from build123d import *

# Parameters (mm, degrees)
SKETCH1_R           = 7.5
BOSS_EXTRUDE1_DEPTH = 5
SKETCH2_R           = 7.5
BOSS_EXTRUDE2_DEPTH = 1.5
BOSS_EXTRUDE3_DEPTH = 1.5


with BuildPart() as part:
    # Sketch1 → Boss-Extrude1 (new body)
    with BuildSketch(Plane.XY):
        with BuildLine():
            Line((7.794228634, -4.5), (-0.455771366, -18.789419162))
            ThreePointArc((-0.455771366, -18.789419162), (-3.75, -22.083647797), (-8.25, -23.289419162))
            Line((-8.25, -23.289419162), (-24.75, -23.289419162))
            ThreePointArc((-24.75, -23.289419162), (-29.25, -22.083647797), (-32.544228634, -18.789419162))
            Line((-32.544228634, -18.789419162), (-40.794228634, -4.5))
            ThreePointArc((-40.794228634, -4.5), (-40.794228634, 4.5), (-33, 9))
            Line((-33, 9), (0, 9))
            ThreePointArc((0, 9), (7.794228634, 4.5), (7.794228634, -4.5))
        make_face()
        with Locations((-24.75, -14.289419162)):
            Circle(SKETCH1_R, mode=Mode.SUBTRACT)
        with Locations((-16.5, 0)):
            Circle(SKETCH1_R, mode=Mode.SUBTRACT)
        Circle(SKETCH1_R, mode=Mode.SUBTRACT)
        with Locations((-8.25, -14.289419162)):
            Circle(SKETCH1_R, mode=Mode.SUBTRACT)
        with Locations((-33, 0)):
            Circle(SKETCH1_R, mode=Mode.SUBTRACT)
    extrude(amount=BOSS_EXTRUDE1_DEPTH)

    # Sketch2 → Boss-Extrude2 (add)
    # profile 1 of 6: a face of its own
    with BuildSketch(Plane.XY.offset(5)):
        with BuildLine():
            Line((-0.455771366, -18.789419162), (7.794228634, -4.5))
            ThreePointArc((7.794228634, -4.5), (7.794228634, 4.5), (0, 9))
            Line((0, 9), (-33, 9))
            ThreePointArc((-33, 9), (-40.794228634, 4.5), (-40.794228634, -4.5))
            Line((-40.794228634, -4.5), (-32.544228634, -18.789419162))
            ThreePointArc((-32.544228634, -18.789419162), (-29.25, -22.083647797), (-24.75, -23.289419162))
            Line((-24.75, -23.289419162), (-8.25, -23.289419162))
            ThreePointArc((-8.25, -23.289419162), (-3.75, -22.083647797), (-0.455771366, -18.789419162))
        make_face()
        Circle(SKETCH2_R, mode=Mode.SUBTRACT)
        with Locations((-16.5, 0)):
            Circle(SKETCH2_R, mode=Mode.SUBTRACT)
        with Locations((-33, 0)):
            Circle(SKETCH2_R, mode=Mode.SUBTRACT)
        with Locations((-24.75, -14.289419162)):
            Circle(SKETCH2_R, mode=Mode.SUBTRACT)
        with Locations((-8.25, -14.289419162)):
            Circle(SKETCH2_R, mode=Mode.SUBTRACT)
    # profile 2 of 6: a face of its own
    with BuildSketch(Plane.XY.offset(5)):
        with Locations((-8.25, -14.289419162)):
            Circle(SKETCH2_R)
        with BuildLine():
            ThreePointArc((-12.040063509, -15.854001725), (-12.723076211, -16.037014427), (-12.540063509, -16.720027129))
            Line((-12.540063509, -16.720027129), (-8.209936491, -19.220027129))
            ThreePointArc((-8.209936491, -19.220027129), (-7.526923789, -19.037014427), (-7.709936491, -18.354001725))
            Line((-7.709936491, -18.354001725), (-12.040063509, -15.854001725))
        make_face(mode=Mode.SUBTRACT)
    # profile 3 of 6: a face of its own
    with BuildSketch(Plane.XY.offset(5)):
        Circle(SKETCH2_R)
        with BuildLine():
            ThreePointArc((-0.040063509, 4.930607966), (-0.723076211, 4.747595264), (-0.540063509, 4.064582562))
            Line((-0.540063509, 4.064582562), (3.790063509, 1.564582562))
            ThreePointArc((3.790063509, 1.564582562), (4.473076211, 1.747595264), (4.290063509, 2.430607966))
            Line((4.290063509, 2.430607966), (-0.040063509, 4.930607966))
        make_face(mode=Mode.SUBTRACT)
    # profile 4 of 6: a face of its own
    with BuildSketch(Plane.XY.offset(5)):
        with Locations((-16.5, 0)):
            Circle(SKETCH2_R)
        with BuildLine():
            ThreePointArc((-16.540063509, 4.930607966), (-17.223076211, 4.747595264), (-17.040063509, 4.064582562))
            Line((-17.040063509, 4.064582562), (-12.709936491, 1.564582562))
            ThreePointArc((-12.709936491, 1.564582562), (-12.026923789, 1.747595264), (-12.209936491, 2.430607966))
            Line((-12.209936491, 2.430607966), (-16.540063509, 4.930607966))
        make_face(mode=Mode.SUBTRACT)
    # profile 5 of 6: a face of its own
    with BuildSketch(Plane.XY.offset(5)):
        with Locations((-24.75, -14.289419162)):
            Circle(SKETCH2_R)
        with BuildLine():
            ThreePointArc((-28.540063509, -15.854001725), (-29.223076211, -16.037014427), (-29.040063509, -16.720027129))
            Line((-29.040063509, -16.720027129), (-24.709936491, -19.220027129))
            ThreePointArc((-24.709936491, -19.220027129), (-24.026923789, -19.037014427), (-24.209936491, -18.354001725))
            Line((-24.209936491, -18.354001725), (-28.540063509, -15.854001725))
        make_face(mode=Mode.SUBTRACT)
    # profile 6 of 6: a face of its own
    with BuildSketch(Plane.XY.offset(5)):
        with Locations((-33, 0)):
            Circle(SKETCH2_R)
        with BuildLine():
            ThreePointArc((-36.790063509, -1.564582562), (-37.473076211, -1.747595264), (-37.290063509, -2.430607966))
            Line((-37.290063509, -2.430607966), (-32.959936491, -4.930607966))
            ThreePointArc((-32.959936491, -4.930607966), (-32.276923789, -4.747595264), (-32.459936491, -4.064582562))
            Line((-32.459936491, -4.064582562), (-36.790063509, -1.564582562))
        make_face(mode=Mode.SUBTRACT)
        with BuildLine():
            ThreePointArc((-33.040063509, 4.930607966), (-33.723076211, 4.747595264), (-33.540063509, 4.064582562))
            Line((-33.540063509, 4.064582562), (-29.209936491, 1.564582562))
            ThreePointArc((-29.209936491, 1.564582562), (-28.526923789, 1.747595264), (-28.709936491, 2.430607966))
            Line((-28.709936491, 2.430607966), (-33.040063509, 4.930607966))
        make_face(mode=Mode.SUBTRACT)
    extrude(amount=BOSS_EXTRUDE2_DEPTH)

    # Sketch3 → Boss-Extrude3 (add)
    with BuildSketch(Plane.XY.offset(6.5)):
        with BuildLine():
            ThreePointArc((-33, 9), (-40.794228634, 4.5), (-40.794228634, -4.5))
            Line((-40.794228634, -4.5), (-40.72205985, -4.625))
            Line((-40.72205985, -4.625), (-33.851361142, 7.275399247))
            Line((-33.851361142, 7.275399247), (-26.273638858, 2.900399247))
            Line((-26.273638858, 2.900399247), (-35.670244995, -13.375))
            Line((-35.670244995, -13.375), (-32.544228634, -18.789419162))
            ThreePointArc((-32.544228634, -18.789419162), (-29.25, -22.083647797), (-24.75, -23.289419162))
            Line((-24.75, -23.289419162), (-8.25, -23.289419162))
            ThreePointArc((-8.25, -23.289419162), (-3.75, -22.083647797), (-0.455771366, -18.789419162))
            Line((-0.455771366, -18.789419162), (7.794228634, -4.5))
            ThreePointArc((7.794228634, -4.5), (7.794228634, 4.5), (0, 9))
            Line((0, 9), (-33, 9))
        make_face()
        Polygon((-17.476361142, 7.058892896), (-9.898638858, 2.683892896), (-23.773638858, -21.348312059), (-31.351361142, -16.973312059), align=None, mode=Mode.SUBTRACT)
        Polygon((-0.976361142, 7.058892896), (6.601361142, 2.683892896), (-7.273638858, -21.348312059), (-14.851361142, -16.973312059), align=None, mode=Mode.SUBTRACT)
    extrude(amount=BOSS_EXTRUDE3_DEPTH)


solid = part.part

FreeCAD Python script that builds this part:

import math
import FreeCAD as App
import Part
import Sketcher
Q = App.Units.Quantity


def add_polygon(sketch, points):
    """Adds a closed chain of lines whose ends are joined by coincident constraints."""
    first, n = sketch.GeometryCount, len(points)
    for a, b in zip(points, points[1:] + points[:1]):
        sketch.addGeometry(Part.LineSegment(App.Vector(*a, 0), App.Vector(*b, 0)), False)
    for i in range(n):
        sketch.addConstraint(Sketcher.Constraint("Coincident", first + i, 2, first + (i + 1) % n, 1))

doc = App.newDocument("Part")
body = doc.addObject("PartDesign::Body", "Body")

# Sketch on XY plane
sketch1 = body.newObject("Sketcher::SketchObject", "Sketch")
sketch1.AttachmentSupport = (doc.getObject("XY_Plane"), [""])
sketch1.MapMode = "FlatFace"
sketch1.addGeometry([
    Part.LineSegment(App.Vector(0, -19, 0), App.Vector(8, -4, 0)),  # 0
    Part.ArcOfCircle(Part.Circle(App.Vector(0, 0, 0), App.Vector(0, 0, 1), 9), math.radians(-30), math.radians(90)),  # 1
    Part.LineSegment(App.Vector(0, 9, 0), App.Vector(-33, 9, 0)),  # 2
    Part.ArcOfCircle(Part.Circle(App.Vector(-33, 0, 0), App.Vector(0, 0, 1), 9), math.radians(90), math.radians(210)),  # 3
    Part.LineSegment(App.Vector(-41, -4, 0), App.Vector(-33, -19, 0)),  # 4
    Part.ArcOfCircle(Part.Circle(App.Vector(-25, -14, 0), App.Vector(0, 0, 1), 9), math.radians(-150), math.radians(-90)),  # 5
    Part.LineSegment(App.Vector(-25, -23, 0), App.Vector(-8, -23, 0)),  # 6
    Part.ArcOfCircle(Part.Circle(App.Vector(-8, -14, 0), App.Vector(0, 0, 1), 9), math.radians(-90), math.radians(-30)),  # 7
    Part.Circle(App.Vector(-8, -14, 0), App.Vector(0, 0, 1), 8),  # 8
    Part.Circle(App.Vector(-25, -14, 0), App.Vector(0, 0, 1), 8),  # 9
    Part.Circle(App.Vector(0, 0, 0), App.Vector(0, 0, 1), 8),  # 10
    Part.Circle(App.Vector(-16, 0, 0), App.Vector(0, 0, 1), 8),  # 11
    Part.Circle(App.Vector(-33, 0, 0), App.Vector(0, 0, 1), 8),  # 12
], False)
sketch1.addConstraint([
    Sketcher.Constraint("Tangent", 0, 2, 1, 1),
    Sketcher.Constraint("Tangent", 1, 2, 2, 1),
    Sketcher.Constraint("Tangent", 2, 2, 3, 1),
    Sketcher.Constraint("Tangent", 3, 2, 4, 1),
    Sketcher.Constraint("Tangent", 4, 2, 5, 1),
    Sketcher.Constraint("Tangent", 5, 2, 6, 1),
    Sketcher.Constraint("Tangent", 6, 2, 7, 1),
    Sketcher.Constraint("Tangent", 7, 2, 0, 1),
    Sketcher.Constraint("Horizontal", 2),
    Sketcher.Constraint("Horizontal", 6),
    Sketcher.Constraint("Coincident", 1, 3, -1, 1),
    Sketcher.Constraint("Coincident", 10, 3, -1, 1),
    Sketcher.Constraint("Coincident", 8, 3, 7, 3),
    Sketcher.Constraint("Coincident", 9, 3, 5, 3),
    Sketcher.Constraint("Coincident", 12, 3, 3, 3),
    Sketcher.Constraint("Equal", 1, 3),
    Sketcher.Constraint("Equal", 3, 5),
    Sketcher.Constraint("Equal", 5, 7),
    Sketcher.Constraint("Equal", 8, 9),
    Sketcher.Constraint("Equal", 9, 10),
    Sketcher.Constraint("Equal", 10, 11),
    Sketcher.Constraint("Equal", 11, 12),
    Sketcher.Constraint("PointOnObject", 11, 3, -1),
    Sketcher.Constraint("Horizontal", 0, 2, 3, 2),
    Sketcher.Constraint("Diameter", 8, 15.0),
    Sketcher.Constraint("Radius", 1, 9.0),
    Sketcher.Constraint("DistanceX", 2, 2, 2, 1, 33.0),
    Sketcher.Constraint("Angle", 0, Q("60 deg")),
    Sketcher.Constraint("DistanceX", 6, 1, 6, 2, 16.5),
    Sketcher.Constraint("DistanceX", 11, 3, -1, 1, 16.5),
])
pad1 = body.newObject("PartDesign::Pad", "Pad")
pad1.Profile = sketch1
pad1.Length = 5

# Sketch on XY plane
sketch2 = body.newObject("Sketcher::SketchObject", "Sketch001")
sketch2.AttachmentSupport = (doc.getObject("XY_Plane"), [""])
sketch2.MapMode = "FlatFace"
sketch2.AttachmentOffset = App.Placement(App.Vector(0, 0, 5), App.Rotation())
sketch2.addGeometry([
    Part.LineSegment(App.Vector(-0.5, -18.8, 0), App.Vector(7.8, -4.5, 0)),  # 0
    Part.ArcOfCircle(Part.Circle(App.Vector(0, 0, 0), App.Vector(0, 0, 1), 9), math.radians(-30), math.radians(90)),  # 1
    Part.LineSegment(App.Vector(0, 9, 0), App.Vector(-33, 9, 0)),  # 2
    Part.ArcOfCircle(Part.Circle(App.Vector(-33, 0, 0), App.Vector(0, 0, 1), 9), math.radians(90), math.radians(210)),  # 3
    Part.LineSegment(App.Vector(-40.8, -4.5, 0), App.Vector(-32.5, -18.8, 0)),  # 4
    Part.ArcOfCircle(Part.Circle(App.Vector(-24.8, -14.3, 0), App.Vector(0, 0, 1), 9), math.radians(-150), math.radians(-90)),  # 5
    Part.LineSegment(App.Vector(-24.8, -23.3, 0), App.Vector(-8.2, -23.3, 0)),  # 6
    Part.ArcOfCircle(Part.Circle(App.Vector(-8.2, -14.3, 0), App.Vector(0, 0, 1), 9), math.radians(-90), math.radians(-30)),  # 7
    Part.LineSegment(App.Vector(-28.5, -15.9, 0), App.Vector(-24.2, -18.4, 0)),  # 8
    Part.ArcOfCircle(Part.Circle(App.Vector(-24.5, -18.8, 0), App.Vector(0, 0, 1), 0.5), math.radians(-120), math.radians(60)),  # 9
    Part.LineSegment(App.Vector(-24.7, -19.2, 0), App.Vector(-29, -16.7, 0)),  # 10
    Part.ArcOfCircle(Part.Circle(App.Vector(-28.8, -16.3, 0), App.Vector(0, 0, 1), 0.5), math.radians(60), math.radians(240)),  # 11
    Part.LineSegment(App.Vector(-12, -15.9, 0), App.Vector(-7.7, -18.4, 0)),  # 12
    Part.ArcOfCircle(Part.Circle(App.Vector(-8, -18.8, 0), App.Vector(0, 0, 1), 0.5), math.radians(-120), math.radians(60)),  # 13
    Part.LineSegment(App.Vector(-8.2, -19.2, 0), App.Vector(-12.5, -16.7, 0)),  # 14
    Part.ArcOfCircle(Part.Circle(App.Vector(-12.3, -16.3, 0), App.Vector(0, 0, 1), 0.5), math.radians(60), math.radians(240)),  # 15
    Part.LineSegment(App.Vector(-33, 4.9, 0), App.Vector(-28.7, 2.4, 0)),  # 16
    Part.ArcOfCircle(Part.Circle(App.Vector(-29, 2, 0), App.Vector(0, 0, 1), 0.5), math.radians(-120), math.radians(60)),  # 17
    Part.LineSegment(App.Vector(-29.2, 1.6, 0), App.Vector(-33.5, 4.1, 0)),  # 18
    Part.ArcOfCircle(Part.Circle(App.Vector(-33.3, 4.5, 0), App.Vector(0, 0, 1), 0.5), math.radians(60), math.radians(240)),  # 19
    Part.ArcOfCircle(Part.Circle(App.Vector(-37, -2, 0), App.Vector(0, 0, 1), 0.5), math.radians(60), math.radians(240)),  # 20
    Part.LineSegment(App.Vector(-36.8, -1.6, 0), App.Vector(-32.5, -4.1, 0)),  # 21
    Part.ArcOfCircle(Part.Circle(App.Vector(-32.7, -4.5, 0), App.Vector(0, 0, 1), 0.5), math.radians(-120), math.radians(60)),  # 22
    Part.LineSegment(App.Vector(-33, -4.9, 0), App.Vector(-37.3, -2.4, 0)),  # 23
    Part.LineSegment(App.Vector(-16.5, 4.9, 0), App.Vector(-12.2, 2.4, 0)),  # 24
    Part.ArcOfCircle(Part.Circle(App.Vector(-12.5, 2, 0), App.Vector(0, 0, 1), 0.5), math.radians(-120), math.radians(60)),  # 25
    Part.LineSegment(App.Vector(-12.7, 1.6, 0), App.Vector(-17, 4.1, 0)),  # 26
    Part.ArcOfCircle(Part.Circle(App.Vector(-16.8, 4.5, 0), App.Vector(0, 0, 1), 0.5), math.radians(60), math.radians(240)),  # 27
    Part.LineSegment(App.Vector(0, 4.9, 0), App.Vector(4.3, 2.4, 0)),  # 28
    Part.ArcOfCircle(Part.Circle(App.Vector(4, 2, 0), App.Vector(0, 0, 1), 0.5), math.radians(-120), math.radians(60)),  # 29
    Part.LineSegment(App.Vector(3.8, 1.6, 0), App.Vector(-0.5, 4.1, 0)),  # 30
    Part.ArcOfCircle(Part.Circle(App.Vector(-0.3, 4.5, 0), App.Vector(0, 0, 1), 0.5), math.radians(60), math.radians(240)),  # 31
], False)
sketch2.addConstraint([
    Sketcher.Constraint("Tangent", 0, 2, 1, 1),
    Sketcher.Constraint("Tangent", 1, 2, 2, 1),
    Sketcher.Constraint("Tangent", 2, 2, 3, 1),
    Sketcher.Constraint("Tangent", 3, 2, 4, 1),
    Sketcher.Constraint("Tangent", 4, 2, 5, 1),
    Sketcher.Constraint("Tangent", 5, 2, 6, 1),
    Sketcher.Constraint("Tangent", 6, 2, 7, 1),
    Sketcher.Constraint("Tangent", 7, 2, 0, 1),
    Sketcher.Constraint("Tangent", 8, 2, 9, 2),
    Sketcher.Constraint("Tangent", 9, 1, 10, 1),
    Sketcher.Constraint("Tangent", 10, 2, 11, 2),
    Sketcher.Constraint("Tangent", 11, 1, 8, 1),
    Sketcher.Constraint("Tangent", 12, 2, 13, 2),
    Sketcher.Constraint("Tangent", 13, 1, 14, 1),
    Sketcher.Constraint("Tangent", 14, 2, 15, 2),
    Sketcher.Constraint("Tangent", 15, 1, 12, 1),
    Sketcher.Constraint("Tangent", 16, 2, 17, 2),
    Sketcher.Constraint("Tangent", 17, 1, 18, 1),
    Sketcher.Constraint("Tangent", 18, 2, 19, 2),
    Sketcher.Constraint("Tangent", 19, 1, 16, 1),
    Sketcher.Constraint("Tangent", 20, 1, 21, 1),
    Sketcher.Constraint("Tangent", 21, 2, 22, 2),
    Sketcher.Constraint("Tangent", 22, 1, 23, 1),
    Sketcher.Constraint("Tangent", 23, 2, 20, 2),
    Sketcher.Constraint("Tangent", 24, 2, 25, 2),
    Sketcher.Constraint("Tangent", 25, 1, 26, 1),
    Sketcher.Constraint("Tangent", 26, 2, 27, 2),
    Sketcher.Constraint("Tangent", 27, 1, 24, 1),
    Sketcher.Constraint("Tangent", 28, 2, 29, 2),
    Sketcher.Constraint("Tangent", 29, 1, 30, 1),
    Sketcher.Constraint("Tangent", 30, 2, 31, 2),
    Sketcher.Constraint("Tangent", 31, 1, 28, 1),
    Sketcher.Constraint("Horizontal", 2),
    Sketcher.Constraint("Horizontal", 6),
    Sketcher.Constraint("Coincident", 1, 3, -1, 1),
    Sketcher.Constraint("Equal", 1, 3),
    Sketcher.Constraint("Equal", 3, 5),
    Sketcher.Constraint("Equal", 5, 7),
    Sketcher.Constraint("Equal", 9, 11),
    Sketcher.Constraint("Equal", 11, 13),
    Sketcher.Constraint("Equal", 13, 15),
    Sketcher.Constraint("Equal", 15, 17),
    Sketcher.Constraint("Equal", 17, 19),
    Sketcher.Constraint("Equal", 19, 20),
    Sketcher.Constraint("Equal", 20, 22),
    Sketcher.Constraint("Equal", 22, 25),
    Sketcher.Constraint("Equal", 25, 27),
    Sketcher.Constraint("Equal", 27, 29),
    Sketcher.Constraint("Equal", 29, 31),
    Sketcher.Constraint("Perpendicular", 0, 8),
    Sketcher.Constraint("Parallel", 10, 12),
    Sketcher.Constraint("Parallel", 14, 16),
    Sketcher.Constraint("Parallel", 18, 21),
    Sketcher.Constraint("Parallel", 23, 24),
    Sketcher.Constraint("Parallel", 26, 28),
    Sketcher.Constraint("Horizontal", 9, 3, 13, 3),
    Sketcher.Constraint("Horizontal", 11, 3, 15, 3),
    Sketcher.Constraint("Horizontal", 17, 3, 25, 3),
    Sketcher.Constraint("Horizontal", 19, 3, 27, 3),
    Sketcher.Constraint("Horizontal", 25, 3, 29, 3),
    Sketcher.Constraint("Horizontal", 27, 3, 31, 3),
    Sketcher.Constraint("Horizontal", 0, 2, 3, 2),
    Sketcher.Constraint("Equal", 14, 16),
    Sketcher.Constraint("Equal", 18, 21),
    Sketcher.Constraint("Radius", 1, 9.0),
    Sketcher.Constraint("Radius", 9, 0.5),
    Sketcher.Constraint("DistanceX", 2, 2, 2, 1, 33.0),
    Sketcher.Constraint("Angle", 0, Q("60 deg")),
    Sketcher.Constraint("Distance", 8, 5.0),
    Sketcher.Constraint("DistanceX", 6, 1, 6, 2, 16.5),
    Sketcher.Constraint("DistanceX", 13, 3, 29, 3, 12.0),
    Sketcher.Constraint("DistanceX", 22, 3, 16, 2, 4.0),
    Sketcher.Constraint("DistanceX", 9, 3, 13, 3, 16.5),
    Sketcher.Constraint("DistanceX", 17, 3, 9, 3, 4.5),
    Sketcher.Constraint("DistanceX", 17, 3, 25, 3, 16.5),
    Sketcher.Constraint("DistanceY", 8, 2, -1, 1, 18.354002),
    Sketcher.Constraint("DistanceY", 11, 3, 17, 3, 18.28461),
    Sketcher.Constraint("DistanceY", 20, 3, 19, 3, 6.495191),
    Sketcher.Constraint("DistanceX", 9, 3, -1, 1, 24.459936),
])
pad2 = body.newObject("PartDesign::Pad", "Pad001")
pad2.Profile = sketch2
pad2.Length = 1.5

# Sketch on XY plane
sketch3 = body.newObject("Sketcher::SketchObject", "Sketch002")
sketch3.AttachmentSupport = (doc.getObject("XY_Plane"), [""])
sketch3.MapMode = "FlatFace"
sketch3.AttachmentOffset = App.Placement(App.Vector(0, 0, 6.5), App.Rotation())
sketch3.addGeometry(Part.ArcOfCircle(Part.Circle(App.Vector(-33, 0, 0), App.Vector(0, 0, 1), 9), math.radians(90), math.radians(210)), False)  # 0
sketch3.addGeometry(Part.LineSegment(App.Vector(-40.79, -4.5, 0), App.Vector(-40.72, -4.62, 0)), False)  # 1
sketch3.addGeometry(Part.LineSegment(App.Vector(-40.72, -4.62, 0), App.Vector(-33.85, 7.28, 0)), False)  # 2
sketch3.addGeometry(Part.LineSegment(App.Vector(-33.85, 7.28, 0), App.Vector(-26.27, 2.9, 0)), False)  # 3
sketch3.addGeometry(Part.LineSegment(App.Vector(-26.27, 2.9, 0), App.Vector(-35.67, -13.38, 0)), False)  # 4
sketch3.addGeometry(Part.LineSegment(App.Vector(-35.67, -13.38, 0), App.Vector(-32.54, -18.79, 0)), False)  # 5
sketch3.addGeometry(Part.ArcOfCircle(Part.Circle(App.Vector(-24.75, -14.29, 0), App.Vector(0, 0, 1), 9), math.radians(-150), math.radians(-90)), False)  # 6
sketch3.addGeometry(Part.LineSegment(App.Vector(-24.75, -23.29, 0), App.Vector(-8.25, -23.29, 0)), False)  # 7
sketch3.addGeometry(Part.ArcOfCircle(Part.Circle(App.Vector(-8.25, -14.29, 0), App.Vector(0, 0, 1), 9), math.radians(-90), math.radians(-30)), False)  # 8
sketch3.addGeometry(Part.LineSegment(App.Vector(-0.46, -18.79, 0), App.Vector(7.79, -4.5, 0)), False)  # 9
sketch3.addGeometry(Part.ArcOfCircle(Part.Circle(App.Vector(0, 0, 0), App.Vector(0, 0, 1), 9), math.radians(-30), math.radians(90)), False)  # 10
sketch3.addGeometry(Part.LineSegment(App.Vector(0, 9, 0), App.Vector(-33, 9, 0)), False)  # 11
add_polygon(sketch3, [(-31.35, -16.97), (-17.48, 7.06), (-9.9, 2.68), (-23.77, -21.35)])  # lines 12-15
add_polygon(sketch3, [(-14.85, -16.97), (-0.98, 7.06), (6.6, 2.68), (-7.27, -21.35)])  # lines 16-19
sketch3.addConstraint([
    Sketcher.Constraint("Tangent", 0, 2, 1, 1),
    Sketcher.Constraint("Coincident", 1, 2, 2, 1),
    Sketcher.Constraint("Coincident", 2, 2, 3, 1),
    Sketcher.Constraint("Coincident", 3, 2, 4, 1),
    Sketcher.Constraint("Coincident", 4, 2, 5, 1),
    Sketcher.Constraint("Tangent", 5, 2, 6, 1),
    Sketcher.Constraint("Tangent", 6, 2, 7, 1),
    Sketcher.Constraint("Tangent", 7, 2, 8, 1),
    Sketcher.Constraint("Tangent", 8, 2, 9, 1),
    Sketcher.Constraint("Tangent", 9, 2, 10, 1),
    Sketcher.Constraint("Tangent", 10, 2, 11, 1),
    Sketcher.Constraint("Tangent", 11, 2, 0, 1),
    Sketcher.Constraint("Horizontal", 7),
    Sketcher.Constraint("Horizontal", 11),
    Sketcher.Constraint("Coincident", 10, 3, -1, 1),
    Sketcher.Constraint("Equal", 0, 6),
    Sketcher.Constraint("Equal", 6, 8),
    Sketcher.Constraint("Equal", 8, 10),
    Sketcher.Constraint("Perpendicular", 2, 3),
    Sketcher.Constraint("Perpendicular", 3, 4),
    Sketcher.Constraint("Parallel", 1, 5),
    Sketcher.Constraint("Parallel", 4, 9),
    Sketcher.Constraint("Parallel", 9, 12),
    Sketcher.Constraint("Perpendicular", 12, 13),
    Sketcher.Constraint("Perpendicular", 13, 14),
    Sketcher.Constraint("Perpendicular", 14, 15),
    Sketcher.Constraint("Perpendicular", 15, 16),
    Sketcher.Constraint("Perpendicular", 16, 17),
    Sketcher.Constraint("Perpendicular", 17, 18),
    Sketcher.Constraint("Perpendicular", 18, 19),
    Sketcher.Constraint("Horizontal", 5, 2, 8, 2),
    Sketcher.Constraint("Horizontal", 12, 2, 16, 2),
    Sketcher.Constraint("Horizontal", 13, 2, 17, 2),
    Sketcher.Constraint("Horizontal", 14, 2, 18, 2),
    Sketcher.Constraint("Equal", 3, 13),
    Sketcher.Constraint("Radius", 0, 9.0),
    Sketcher.Constraint("DistanceX", 11, 2, 11, 1, 33.0),
    Sketcher.Constraint("Angle", 2, Q("60 deg")),
    Sketcher.Constraint("DistanceX", 7, 1, 7, 2, 16.5),
    Sketcher.Constraint("Distance", 9, 16.5),
    Sketcher.Constraint("DistanceX", 12, 2, 16, 2, 16.5),
    Sketcher.Constraint("Distance", 3, 8.75),
    Sketcher.Constraint("Distance", 12, 27.75),
    Sketcher.Constraint("DistanceY", 1, 2, -1, 1, 4.625),
    Sketcher.Constraint("DistanceX", 2, 2, 12, 2, 16.375),
    Sketcher.Constraint("DistanceY", -1, 1, 2, 2, 7.275399),
    Sketcher.Constraint("DistanceY", -1, 1, 12, 2, 7.058893),
])
pad3 = body.newObject("PartDesign::Pad", "Pad002")
pad3.Profile = sketch3
pad3.Length = 1.5

doc.recompute()
